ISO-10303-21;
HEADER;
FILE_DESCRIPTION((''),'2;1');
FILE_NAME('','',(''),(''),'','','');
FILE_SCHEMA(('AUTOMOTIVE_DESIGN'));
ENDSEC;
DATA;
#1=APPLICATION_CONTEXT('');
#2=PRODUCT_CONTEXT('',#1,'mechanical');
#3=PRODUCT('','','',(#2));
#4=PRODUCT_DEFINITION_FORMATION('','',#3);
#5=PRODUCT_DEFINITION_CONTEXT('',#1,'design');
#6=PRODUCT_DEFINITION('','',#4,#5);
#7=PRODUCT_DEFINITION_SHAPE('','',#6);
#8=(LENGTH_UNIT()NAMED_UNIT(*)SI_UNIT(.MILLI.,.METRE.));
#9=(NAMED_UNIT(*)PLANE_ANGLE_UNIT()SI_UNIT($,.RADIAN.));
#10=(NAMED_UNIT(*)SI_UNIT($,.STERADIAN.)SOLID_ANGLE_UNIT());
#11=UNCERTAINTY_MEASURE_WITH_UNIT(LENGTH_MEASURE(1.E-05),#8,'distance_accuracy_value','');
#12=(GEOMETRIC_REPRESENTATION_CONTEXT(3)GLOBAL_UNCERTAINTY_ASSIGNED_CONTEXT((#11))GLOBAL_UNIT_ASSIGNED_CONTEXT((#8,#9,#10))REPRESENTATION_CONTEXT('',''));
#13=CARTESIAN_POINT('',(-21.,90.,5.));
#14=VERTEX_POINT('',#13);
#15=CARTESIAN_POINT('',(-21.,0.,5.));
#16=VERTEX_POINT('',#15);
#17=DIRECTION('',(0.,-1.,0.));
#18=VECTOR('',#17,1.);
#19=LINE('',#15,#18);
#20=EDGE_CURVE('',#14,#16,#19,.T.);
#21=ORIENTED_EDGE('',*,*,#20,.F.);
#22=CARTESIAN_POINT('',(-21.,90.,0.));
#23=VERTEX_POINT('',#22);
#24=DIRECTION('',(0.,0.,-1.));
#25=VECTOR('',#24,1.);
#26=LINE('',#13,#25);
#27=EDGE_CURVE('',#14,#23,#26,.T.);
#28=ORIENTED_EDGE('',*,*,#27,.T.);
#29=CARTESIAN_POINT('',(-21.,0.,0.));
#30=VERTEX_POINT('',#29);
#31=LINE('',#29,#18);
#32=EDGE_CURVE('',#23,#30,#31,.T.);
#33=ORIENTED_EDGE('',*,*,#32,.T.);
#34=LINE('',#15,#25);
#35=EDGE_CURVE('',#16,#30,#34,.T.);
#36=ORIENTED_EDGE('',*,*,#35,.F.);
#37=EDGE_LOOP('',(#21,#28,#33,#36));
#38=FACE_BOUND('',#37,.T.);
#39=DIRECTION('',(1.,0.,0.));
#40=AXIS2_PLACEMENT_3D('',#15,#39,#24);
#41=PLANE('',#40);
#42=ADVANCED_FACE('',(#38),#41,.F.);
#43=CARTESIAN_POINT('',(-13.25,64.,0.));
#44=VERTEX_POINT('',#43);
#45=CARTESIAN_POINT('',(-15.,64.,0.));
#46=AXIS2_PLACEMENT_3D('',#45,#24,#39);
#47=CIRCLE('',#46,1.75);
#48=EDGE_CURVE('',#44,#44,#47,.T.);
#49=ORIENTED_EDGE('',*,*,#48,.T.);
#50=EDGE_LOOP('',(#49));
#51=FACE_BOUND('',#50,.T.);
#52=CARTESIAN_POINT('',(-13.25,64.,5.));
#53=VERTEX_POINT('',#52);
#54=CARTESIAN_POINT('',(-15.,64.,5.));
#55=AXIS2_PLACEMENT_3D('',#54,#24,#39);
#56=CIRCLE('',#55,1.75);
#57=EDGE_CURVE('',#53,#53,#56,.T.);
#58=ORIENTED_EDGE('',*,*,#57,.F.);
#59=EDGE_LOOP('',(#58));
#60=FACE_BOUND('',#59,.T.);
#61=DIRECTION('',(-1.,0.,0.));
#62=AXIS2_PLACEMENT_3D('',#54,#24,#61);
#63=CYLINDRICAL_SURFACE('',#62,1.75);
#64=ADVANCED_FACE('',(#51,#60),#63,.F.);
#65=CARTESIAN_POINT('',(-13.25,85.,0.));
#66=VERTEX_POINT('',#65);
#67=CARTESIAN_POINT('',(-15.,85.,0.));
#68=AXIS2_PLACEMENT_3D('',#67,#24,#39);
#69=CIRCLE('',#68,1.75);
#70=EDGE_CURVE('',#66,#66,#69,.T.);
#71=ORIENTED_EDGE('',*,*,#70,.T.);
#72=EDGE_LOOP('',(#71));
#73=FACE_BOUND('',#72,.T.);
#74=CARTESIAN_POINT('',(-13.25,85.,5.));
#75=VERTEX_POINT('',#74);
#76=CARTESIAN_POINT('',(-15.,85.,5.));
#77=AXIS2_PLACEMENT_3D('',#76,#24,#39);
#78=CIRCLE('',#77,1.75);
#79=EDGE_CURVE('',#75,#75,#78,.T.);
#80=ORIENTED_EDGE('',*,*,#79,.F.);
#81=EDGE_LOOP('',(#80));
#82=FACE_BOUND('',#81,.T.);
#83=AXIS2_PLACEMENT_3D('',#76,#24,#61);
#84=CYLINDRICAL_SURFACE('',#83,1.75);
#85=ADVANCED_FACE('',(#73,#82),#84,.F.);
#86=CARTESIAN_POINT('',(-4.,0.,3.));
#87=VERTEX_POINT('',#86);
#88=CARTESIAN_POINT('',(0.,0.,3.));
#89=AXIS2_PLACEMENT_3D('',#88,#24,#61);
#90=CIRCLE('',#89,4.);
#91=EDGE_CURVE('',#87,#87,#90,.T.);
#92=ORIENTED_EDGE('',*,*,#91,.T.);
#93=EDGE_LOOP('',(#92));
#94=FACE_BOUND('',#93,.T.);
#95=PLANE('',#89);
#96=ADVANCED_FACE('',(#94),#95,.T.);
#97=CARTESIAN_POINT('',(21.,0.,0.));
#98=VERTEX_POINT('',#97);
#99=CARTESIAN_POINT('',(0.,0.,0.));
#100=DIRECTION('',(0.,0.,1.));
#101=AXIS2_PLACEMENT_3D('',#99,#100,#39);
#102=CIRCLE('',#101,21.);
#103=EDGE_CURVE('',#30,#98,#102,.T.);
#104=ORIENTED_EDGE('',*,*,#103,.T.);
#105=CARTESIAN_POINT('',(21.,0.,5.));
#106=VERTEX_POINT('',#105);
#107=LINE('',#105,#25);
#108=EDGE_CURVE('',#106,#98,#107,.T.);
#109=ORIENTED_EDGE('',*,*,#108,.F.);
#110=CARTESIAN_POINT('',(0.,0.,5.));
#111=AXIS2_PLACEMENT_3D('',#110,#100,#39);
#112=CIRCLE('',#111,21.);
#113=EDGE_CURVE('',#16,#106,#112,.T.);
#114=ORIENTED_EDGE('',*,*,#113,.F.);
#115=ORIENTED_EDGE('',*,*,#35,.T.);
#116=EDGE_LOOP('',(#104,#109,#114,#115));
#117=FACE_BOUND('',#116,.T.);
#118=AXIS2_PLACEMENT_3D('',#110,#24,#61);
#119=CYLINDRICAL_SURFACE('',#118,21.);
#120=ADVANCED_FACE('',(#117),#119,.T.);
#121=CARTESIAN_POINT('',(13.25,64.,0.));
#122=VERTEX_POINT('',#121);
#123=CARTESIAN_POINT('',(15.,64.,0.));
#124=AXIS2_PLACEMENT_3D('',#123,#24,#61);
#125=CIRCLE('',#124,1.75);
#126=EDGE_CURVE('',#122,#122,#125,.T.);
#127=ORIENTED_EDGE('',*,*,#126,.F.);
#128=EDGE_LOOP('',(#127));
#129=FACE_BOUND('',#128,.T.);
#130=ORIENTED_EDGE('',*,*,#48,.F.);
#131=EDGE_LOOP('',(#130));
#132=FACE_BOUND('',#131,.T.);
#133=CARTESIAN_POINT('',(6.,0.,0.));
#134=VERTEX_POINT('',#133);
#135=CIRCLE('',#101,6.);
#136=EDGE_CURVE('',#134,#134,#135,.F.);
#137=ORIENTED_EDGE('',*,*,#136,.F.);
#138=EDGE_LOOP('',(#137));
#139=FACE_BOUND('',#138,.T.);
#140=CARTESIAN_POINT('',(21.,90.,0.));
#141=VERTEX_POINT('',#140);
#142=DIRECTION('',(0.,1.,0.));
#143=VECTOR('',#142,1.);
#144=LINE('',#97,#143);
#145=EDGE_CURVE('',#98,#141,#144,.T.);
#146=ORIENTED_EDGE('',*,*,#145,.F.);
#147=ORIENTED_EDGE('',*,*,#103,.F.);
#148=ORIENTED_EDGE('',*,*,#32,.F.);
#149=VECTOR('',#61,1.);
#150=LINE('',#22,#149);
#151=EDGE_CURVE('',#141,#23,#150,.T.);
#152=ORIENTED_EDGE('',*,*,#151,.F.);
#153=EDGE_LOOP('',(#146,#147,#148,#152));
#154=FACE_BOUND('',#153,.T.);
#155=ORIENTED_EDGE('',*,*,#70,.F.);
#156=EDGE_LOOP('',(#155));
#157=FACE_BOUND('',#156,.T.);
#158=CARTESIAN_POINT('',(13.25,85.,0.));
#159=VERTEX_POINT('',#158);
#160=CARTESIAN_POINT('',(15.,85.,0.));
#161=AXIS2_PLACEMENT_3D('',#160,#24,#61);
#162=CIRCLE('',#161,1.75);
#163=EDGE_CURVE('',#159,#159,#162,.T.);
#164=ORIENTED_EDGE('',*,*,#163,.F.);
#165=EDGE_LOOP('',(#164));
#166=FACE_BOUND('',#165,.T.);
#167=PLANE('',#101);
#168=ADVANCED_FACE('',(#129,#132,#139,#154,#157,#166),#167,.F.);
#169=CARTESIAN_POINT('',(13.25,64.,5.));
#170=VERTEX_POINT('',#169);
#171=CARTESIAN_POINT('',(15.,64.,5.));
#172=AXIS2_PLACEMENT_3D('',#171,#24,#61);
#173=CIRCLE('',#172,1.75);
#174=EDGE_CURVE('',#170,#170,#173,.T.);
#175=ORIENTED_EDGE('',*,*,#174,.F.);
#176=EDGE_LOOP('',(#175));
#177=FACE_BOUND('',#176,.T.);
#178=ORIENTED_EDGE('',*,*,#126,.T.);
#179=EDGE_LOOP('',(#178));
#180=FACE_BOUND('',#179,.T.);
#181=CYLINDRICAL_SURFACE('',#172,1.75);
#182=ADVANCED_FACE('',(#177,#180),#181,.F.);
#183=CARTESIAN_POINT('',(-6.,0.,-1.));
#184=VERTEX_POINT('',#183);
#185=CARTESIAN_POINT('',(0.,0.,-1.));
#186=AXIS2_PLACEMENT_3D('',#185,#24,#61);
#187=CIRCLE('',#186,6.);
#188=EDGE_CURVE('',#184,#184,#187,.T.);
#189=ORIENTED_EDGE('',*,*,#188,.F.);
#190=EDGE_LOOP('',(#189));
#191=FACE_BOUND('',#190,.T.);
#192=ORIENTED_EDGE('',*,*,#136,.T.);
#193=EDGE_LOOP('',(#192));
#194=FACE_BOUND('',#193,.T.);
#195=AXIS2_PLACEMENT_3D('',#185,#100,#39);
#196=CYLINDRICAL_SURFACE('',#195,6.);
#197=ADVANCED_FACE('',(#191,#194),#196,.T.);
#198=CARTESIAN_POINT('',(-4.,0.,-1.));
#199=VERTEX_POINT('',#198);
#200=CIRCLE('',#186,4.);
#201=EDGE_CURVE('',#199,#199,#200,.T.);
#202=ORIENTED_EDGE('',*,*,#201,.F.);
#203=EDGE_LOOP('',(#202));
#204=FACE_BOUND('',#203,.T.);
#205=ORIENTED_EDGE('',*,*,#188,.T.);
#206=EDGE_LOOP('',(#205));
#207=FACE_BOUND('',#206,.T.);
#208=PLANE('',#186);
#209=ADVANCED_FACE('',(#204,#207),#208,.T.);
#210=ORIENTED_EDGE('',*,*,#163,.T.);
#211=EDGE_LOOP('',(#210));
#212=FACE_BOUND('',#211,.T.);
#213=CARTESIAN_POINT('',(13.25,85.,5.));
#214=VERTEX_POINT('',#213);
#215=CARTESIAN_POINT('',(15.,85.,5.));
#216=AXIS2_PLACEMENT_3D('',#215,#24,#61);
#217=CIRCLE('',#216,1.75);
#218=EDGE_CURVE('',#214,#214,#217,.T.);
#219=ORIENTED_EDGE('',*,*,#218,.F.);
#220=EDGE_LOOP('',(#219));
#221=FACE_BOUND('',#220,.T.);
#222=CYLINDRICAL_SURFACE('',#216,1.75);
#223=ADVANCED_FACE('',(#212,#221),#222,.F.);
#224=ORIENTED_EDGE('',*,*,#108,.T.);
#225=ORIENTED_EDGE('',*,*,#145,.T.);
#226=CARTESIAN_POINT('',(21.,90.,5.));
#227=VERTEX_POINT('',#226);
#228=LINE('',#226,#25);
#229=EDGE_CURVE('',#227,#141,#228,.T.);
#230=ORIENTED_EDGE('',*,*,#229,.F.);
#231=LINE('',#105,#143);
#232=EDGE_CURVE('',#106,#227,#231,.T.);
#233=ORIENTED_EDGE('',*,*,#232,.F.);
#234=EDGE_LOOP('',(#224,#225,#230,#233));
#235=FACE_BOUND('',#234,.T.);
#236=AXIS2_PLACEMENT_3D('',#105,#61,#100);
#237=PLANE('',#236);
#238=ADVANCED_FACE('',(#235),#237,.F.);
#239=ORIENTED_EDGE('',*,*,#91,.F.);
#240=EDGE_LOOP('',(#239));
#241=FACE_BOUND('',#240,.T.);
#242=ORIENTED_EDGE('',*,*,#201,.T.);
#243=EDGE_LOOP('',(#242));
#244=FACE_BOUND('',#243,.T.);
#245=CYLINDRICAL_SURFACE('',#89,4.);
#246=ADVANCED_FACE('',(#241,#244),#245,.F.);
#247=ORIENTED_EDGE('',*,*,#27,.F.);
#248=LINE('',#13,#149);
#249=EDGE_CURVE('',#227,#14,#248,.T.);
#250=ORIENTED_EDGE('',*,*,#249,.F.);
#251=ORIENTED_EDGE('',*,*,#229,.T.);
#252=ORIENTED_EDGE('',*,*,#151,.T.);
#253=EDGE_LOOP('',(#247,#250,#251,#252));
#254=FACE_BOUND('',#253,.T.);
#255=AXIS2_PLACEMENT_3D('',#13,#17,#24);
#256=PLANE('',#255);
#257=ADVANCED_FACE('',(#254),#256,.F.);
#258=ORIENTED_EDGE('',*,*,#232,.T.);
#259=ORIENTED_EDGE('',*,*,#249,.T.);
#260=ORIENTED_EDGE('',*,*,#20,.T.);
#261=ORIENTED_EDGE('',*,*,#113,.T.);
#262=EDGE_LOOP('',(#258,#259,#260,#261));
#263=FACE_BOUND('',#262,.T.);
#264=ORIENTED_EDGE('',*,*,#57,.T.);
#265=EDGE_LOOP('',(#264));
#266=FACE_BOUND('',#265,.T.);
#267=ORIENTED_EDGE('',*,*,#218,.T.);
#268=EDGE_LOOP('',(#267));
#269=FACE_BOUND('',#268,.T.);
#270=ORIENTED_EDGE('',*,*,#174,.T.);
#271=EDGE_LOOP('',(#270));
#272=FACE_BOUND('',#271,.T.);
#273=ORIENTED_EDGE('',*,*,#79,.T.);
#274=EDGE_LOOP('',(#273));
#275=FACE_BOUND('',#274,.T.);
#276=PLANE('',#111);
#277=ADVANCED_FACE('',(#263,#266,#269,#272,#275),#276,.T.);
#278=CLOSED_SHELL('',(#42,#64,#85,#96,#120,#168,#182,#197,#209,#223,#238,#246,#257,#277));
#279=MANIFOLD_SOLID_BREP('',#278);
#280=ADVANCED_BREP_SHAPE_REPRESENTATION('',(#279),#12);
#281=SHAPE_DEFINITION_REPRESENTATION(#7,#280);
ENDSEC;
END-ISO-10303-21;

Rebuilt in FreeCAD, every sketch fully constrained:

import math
import FreeCAD as App
import Part
import Sketcher

V = App.Vector
Q = App.Units.Quantity

doc = App.newDocument("Part")
body = doc.addObject("PartDesign::Body", "Body")

# Sketch on XY plane
sketch1 = body.newObject("Sketcher::SketchObject", "Sketch")
sketch1.AttachmentSupport = (doc.getObject("XY_Plane"), [""])
sketch1.MapMode = "FlatFace"
sketch1.addGeometry([
    Part.LineSegment(V(-21, 90, 0), V(-21, 0, 0)),
    Part.ArcOfCircle(Part.Circle(V(0, 0, 0), V(0, 0, 1), 21), math.radians(180), math.radians(360)),
    Part.LineSegment(V(21, 0, 0), V(21, 90, 0)),
    Part.LineSegment(V(21, 90, 0), V(-21, 90, 0)),
], False)
sketch1.addConstraint([
    Sketcher.Constraint("Tangent", 0, 2, 1, 1),
    Sketcher.Constraint("Tangent", 1, 2, 2, 1),
    Sketcher.Constraint("Coincident", 2, 2, 3, 1),
    Sketcher.Constraint("Coincident", 3, 2, 0, 1),
    Sketcher.Constraint("Vertical", 0),
    Sketcher.Constraint("Vertical", 2),
    Sketcher.Constraint("Horizontal", 3),
    Sketcher.Constraint("Coincident", 1, 3, -1, 1),
    Sketcher.Constraint("Radius", 1, Q("21 mm")),
    Sketcher.Constraint("DistanceY", 0, 2, 0, 1, Q("90 mm")),
])
pad1 = body.newObject("PartDesign::Pad", "Pad")
pad1.Profile = sketch1
pad1.Length = 5

# Sketch on XY plane
sketch2 = body.newObject("Sketcher::SketchObject", "Sketch001")
sketch2.AttachmentSupport = (doc.getObject("XY_Plane"), [""])
sketch2.MapMode = "FlatFace"
sketch2.addGeometry([
    Part.Circle(V(15, 85, 0), V(0, 0, 1), 1.8),
    Part.Circle(V(15, 64, 0), V(0, 0, 1), 1.8),
    Part.Circle(V(-15, 64, 0), V(0, 0, 1), 1.8),
    Part.Circle(V(-15, 85, 0), V(0, 0, 1), 1.8),
], False)
sketch2.addConstraint([
    Sketcher.Constraint("Equal", 0, 1),
    Sketcher.Constraint("Equal", 1, 2),
    Sketcher.Constraint("Equal", 2, 3),
    Sketcher.Constraint("Symmetric", 1, 3, 2, 3, -2),
    Sketcher.Constraint("Symmetric", 0, 3, 3, 3, -2),
    Sketcher.Constraint("Vertical", 0, 3, 1, 3),
    Sketcher.Constraint("Diameter", 0, Q("3.5 mm")),
    Sketcher.Constraint("DistanceX", -1, 1, 0, 3, Q("15 mm")),
    Sketcher.Constraint("DistanceY", -1, 1, 0, 3, Q("85 mm")),
    Sketcher.Constraint("DistanceY", -1, 1, 1, 3, Q("64 mm")),
])
pocket1 = body.newObject("PartDesign::Pocket", "Pocket")
pocket1.Profile = sketch2
pocket1.Type = "ThroughAll"
pocket1.Reversed = True

# Sketch on XY plane
sketch3 = body.newObject("Sketcher::SketchObject", "Sketch002")
sketch3.AttachmentSupport = (doc.getObject("XY_Plane"), [""])
sketch3.MapMode = "FlatFace"
sketch3.addGeometry(Part.Circle(V(0, 0, 0), V(0, 0, 1), 4), False)
sketch3.addConstraint([
    Sketcher.Constraint("Coincident", 0, 3, -1, 1),
    Sketcher.Constraint("Diameter", 0, Q("8 mm")),
])
pocket2 = body.newObject("PartDesign::Pocket", "Pocket001")
pocket2.Profile = sketch3
pocket2.Length = 3
pocket2.Reversed = True

# Sketch on XY plane
sketch4 = body.newObject("Sketcher::SketchObject", "Sketch003")
sketch4.AttachmentSupport = (doc.getObject("XY_Plane"), [""])
sketch4.MapMode = "FlatFace"
sketch4.AttachmentOffset = App.Placement(V(0, 0, -1), App.Rotation())
sketch4.addGeometry([
    Part.Circle(V(0, 0, 0), V(0, 0, 1), 6),
    Part.Circle(V(0, 0, 0), V(0, 0, 1), 4),
], False)
sketch4.addConstraint([
    Sketcher.Constraint("Coincident", 0, 3, -1, 1),
    Sketcher.Constraint("Coincident", 1, 3, -1, 1),
    Sketcher.Constraint("Diameter", 0, Q("12 mm")),
    Sketcher.Constraint("Diameter", 1, Q("8 mm")),
])
pad2 = body.newObject("PartDesign::Pad", "Pad001")
pad2.Profile = sketch4
pad2.Length = 1

doc.recompute()
